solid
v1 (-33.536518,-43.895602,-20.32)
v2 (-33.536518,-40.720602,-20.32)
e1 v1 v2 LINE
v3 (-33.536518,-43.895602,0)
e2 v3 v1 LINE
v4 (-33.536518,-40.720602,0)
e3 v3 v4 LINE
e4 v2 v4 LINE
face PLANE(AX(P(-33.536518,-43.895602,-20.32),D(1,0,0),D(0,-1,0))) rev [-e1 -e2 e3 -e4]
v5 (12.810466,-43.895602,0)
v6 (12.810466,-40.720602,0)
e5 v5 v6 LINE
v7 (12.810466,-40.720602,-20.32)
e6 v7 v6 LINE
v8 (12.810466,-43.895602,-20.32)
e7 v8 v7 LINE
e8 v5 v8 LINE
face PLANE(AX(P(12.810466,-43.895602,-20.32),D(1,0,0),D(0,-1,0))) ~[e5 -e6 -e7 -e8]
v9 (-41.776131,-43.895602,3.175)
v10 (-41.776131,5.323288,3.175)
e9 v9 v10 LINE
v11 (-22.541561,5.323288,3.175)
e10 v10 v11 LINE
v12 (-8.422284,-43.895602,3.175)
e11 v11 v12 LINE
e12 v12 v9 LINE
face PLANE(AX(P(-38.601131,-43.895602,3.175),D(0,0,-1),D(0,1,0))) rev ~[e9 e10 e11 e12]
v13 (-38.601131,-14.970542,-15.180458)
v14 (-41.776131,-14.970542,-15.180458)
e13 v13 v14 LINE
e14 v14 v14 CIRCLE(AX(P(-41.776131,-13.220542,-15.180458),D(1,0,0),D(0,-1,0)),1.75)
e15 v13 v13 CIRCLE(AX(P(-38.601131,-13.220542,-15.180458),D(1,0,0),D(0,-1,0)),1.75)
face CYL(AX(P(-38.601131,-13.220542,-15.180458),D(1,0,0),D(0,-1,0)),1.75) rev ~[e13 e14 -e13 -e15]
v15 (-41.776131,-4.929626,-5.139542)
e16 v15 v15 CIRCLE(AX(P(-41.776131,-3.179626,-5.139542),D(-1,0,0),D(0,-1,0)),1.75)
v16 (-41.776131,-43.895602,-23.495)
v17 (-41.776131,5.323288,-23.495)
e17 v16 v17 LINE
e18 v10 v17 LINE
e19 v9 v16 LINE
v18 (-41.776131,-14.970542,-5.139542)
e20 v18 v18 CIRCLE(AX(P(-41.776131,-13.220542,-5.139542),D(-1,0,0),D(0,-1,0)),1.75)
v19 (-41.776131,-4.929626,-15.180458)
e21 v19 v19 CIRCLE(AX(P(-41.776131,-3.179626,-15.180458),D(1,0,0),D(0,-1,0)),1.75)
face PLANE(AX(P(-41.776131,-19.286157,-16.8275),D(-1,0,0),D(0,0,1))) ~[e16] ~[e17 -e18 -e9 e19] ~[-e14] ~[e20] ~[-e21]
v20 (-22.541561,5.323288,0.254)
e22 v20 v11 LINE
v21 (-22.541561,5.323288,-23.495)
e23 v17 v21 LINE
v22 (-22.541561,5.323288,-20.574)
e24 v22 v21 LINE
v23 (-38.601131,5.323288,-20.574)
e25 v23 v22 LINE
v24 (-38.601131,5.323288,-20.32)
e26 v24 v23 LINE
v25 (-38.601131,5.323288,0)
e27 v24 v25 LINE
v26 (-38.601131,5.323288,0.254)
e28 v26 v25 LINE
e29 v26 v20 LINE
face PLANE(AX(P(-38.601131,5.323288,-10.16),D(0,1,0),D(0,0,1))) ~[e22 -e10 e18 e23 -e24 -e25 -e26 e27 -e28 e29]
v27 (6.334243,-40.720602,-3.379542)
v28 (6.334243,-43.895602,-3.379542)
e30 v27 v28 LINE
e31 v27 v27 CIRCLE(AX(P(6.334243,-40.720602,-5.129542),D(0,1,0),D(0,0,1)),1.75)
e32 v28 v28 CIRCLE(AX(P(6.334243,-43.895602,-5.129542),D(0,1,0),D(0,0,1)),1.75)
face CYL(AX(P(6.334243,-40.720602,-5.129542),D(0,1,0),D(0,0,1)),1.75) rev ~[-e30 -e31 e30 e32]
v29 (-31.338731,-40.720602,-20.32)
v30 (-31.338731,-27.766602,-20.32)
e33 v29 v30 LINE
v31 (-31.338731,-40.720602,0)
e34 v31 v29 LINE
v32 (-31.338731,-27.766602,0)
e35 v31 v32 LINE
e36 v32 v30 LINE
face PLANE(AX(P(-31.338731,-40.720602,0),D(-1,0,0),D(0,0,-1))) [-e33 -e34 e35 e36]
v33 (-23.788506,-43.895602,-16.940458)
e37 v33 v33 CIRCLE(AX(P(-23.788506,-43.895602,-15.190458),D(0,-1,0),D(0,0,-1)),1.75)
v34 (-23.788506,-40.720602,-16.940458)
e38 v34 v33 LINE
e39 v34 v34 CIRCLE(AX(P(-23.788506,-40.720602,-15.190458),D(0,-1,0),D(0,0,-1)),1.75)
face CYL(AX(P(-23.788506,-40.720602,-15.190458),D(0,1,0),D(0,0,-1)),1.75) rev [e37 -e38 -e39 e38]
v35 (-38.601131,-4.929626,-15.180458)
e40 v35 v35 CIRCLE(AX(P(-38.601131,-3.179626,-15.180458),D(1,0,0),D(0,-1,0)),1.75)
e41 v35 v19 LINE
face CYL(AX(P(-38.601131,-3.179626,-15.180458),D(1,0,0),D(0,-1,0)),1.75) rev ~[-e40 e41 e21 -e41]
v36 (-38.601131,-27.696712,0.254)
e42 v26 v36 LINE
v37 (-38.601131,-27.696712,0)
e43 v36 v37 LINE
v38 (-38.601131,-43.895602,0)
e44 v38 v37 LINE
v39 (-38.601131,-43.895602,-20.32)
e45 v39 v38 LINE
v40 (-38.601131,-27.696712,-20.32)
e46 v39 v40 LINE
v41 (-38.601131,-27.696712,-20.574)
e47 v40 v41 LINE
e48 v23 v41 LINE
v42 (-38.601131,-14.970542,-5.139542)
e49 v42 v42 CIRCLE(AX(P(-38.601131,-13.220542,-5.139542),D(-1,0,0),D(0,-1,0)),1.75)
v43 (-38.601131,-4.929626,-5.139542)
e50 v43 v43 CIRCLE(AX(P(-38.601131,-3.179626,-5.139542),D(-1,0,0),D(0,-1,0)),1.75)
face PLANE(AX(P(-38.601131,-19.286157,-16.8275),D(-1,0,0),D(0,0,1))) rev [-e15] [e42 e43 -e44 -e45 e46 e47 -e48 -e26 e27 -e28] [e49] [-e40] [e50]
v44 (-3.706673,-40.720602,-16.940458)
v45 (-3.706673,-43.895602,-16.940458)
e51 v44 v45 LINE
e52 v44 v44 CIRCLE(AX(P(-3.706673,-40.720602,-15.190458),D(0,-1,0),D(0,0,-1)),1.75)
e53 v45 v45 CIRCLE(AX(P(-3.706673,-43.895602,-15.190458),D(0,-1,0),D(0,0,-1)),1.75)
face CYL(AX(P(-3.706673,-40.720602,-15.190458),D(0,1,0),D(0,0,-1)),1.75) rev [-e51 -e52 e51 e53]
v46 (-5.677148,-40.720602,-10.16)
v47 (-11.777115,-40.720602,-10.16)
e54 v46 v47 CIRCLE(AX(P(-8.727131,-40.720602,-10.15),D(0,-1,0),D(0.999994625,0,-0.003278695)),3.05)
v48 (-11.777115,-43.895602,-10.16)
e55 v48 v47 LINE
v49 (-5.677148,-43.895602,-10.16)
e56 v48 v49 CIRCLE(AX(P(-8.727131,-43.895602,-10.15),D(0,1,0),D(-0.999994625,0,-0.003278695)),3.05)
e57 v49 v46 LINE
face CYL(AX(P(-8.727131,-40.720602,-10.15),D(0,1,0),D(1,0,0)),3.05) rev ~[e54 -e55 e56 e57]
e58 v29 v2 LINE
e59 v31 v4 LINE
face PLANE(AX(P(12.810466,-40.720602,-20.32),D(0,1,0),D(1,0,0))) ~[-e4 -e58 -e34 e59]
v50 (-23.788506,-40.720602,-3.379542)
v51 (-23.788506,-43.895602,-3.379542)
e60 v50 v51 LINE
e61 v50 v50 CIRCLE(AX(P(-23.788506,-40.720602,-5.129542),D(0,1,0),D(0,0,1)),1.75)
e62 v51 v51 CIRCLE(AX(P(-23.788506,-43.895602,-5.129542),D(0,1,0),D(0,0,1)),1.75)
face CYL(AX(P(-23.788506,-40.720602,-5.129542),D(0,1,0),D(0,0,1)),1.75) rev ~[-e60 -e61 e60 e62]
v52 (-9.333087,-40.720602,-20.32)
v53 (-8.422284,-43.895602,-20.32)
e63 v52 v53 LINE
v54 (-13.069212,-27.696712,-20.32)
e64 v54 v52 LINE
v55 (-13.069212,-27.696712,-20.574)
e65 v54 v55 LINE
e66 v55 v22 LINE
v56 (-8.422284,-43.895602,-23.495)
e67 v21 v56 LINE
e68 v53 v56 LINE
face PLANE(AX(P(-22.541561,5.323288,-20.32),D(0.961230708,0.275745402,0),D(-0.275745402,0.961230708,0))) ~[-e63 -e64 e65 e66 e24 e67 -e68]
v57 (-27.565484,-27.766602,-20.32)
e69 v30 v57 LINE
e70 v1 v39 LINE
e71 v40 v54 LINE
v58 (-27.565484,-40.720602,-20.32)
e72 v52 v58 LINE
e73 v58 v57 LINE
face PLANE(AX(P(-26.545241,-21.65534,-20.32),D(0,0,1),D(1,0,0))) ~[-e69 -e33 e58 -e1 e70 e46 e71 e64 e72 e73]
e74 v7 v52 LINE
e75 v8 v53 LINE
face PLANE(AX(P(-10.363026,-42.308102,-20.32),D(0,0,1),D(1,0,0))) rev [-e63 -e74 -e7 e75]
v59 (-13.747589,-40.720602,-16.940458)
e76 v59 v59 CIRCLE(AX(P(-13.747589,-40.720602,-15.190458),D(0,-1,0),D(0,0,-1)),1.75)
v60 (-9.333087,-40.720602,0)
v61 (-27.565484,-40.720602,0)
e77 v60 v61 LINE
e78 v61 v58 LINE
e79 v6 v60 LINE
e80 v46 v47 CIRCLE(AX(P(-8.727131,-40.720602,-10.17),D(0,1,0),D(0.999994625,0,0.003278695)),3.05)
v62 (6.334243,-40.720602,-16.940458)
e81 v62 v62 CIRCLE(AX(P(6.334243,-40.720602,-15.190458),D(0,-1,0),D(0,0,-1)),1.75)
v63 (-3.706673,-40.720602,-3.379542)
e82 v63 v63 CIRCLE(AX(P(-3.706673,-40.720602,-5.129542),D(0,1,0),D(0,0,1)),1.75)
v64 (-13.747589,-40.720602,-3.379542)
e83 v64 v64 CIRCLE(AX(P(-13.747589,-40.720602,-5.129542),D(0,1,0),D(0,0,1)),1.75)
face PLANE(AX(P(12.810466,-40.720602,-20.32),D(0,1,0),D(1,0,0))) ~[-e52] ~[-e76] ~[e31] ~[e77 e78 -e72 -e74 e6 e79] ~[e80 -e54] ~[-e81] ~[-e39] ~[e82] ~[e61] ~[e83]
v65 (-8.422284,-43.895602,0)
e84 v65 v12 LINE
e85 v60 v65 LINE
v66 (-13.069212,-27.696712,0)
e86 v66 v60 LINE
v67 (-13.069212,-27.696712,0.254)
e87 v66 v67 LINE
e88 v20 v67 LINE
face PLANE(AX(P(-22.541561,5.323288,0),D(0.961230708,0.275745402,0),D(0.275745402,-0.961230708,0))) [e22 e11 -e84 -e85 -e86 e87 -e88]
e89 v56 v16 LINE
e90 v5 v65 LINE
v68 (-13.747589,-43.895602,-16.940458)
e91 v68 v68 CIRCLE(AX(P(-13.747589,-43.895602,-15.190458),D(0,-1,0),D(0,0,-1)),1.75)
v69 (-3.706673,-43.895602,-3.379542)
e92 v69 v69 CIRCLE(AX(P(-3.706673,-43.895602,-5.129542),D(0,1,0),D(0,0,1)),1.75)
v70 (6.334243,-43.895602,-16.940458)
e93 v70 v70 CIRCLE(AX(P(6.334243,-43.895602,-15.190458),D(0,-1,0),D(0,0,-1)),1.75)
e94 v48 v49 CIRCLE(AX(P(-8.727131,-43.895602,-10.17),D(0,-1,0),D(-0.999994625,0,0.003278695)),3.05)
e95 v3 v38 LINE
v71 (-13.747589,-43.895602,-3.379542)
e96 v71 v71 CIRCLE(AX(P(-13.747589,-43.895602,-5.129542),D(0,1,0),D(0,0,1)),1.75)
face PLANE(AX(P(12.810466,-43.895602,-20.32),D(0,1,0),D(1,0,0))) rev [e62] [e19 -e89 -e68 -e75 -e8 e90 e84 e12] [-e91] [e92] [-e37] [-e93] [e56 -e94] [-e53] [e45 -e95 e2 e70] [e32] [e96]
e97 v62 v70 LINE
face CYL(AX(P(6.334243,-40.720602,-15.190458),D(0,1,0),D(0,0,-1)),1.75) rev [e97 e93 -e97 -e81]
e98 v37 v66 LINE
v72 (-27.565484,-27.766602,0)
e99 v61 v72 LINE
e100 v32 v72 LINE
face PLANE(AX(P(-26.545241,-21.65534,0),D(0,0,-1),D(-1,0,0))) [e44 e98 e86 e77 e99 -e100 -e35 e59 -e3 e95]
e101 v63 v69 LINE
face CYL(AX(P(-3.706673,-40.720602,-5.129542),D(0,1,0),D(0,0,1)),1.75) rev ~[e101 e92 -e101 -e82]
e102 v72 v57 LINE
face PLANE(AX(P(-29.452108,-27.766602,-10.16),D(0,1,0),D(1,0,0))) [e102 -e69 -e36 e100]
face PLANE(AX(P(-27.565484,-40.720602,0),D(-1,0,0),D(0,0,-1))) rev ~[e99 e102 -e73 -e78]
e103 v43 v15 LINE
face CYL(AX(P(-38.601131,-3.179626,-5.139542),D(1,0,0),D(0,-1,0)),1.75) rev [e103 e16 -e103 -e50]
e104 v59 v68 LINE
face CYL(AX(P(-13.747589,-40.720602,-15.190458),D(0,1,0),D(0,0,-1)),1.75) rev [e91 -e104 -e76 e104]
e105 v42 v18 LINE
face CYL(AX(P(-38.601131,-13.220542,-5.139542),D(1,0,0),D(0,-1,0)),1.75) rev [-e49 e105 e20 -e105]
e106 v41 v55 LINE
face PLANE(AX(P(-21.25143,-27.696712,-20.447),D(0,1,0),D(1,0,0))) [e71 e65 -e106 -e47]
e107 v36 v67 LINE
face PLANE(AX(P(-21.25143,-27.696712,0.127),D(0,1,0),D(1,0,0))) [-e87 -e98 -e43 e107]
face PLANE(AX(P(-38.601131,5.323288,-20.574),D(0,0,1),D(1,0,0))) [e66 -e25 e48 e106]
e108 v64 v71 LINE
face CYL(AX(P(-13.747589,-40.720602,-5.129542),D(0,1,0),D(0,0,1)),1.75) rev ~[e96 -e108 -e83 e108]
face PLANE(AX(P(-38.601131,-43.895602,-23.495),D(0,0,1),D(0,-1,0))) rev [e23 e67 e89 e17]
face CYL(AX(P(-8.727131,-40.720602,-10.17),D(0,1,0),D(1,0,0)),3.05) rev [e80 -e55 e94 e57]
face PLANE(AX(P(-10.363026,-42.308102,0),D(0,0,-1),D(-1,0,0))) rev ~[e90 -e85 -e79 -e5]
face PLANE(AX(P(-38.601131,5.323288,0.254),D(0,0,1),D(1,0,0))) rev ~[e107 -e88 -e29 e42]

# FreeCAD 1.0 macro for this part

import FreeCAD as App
import Part
import Sketcher

V = App.Vector
Q = App.Units.Quantity

doc = App.newDocument("Part")
body = doc.addObject("PartDesign::Body", "Body")

sketch1 = doc.addObject("Sketcher::SketchObject", "Sketch")
body.addObject(sketch1)
sketch1.AttachmentSupport = (doc.XY_Plane, [""])
sketch1.MapMode = "FlatFace"
sketch1.addGeometry([
    Part.LineSegment(V(-8, -44, 0), V(-23, 5, 0)),
    Part.LineSegment(V(-23, 5, 0), V(-39, 5, 0)),
    Part.LineSegment(V(-39, 5, 0), V(-39, -44, 0)),
    Part.LineSegment(V(-39, -44, 0), V(-8, -44, 0)),
], False)
sketch1.addConstraint([
    Sketcher.Constraint("Coincident", 0, 2, 1, 1),
    Sketcher.Constraint("Coincident", 1, 2, 2, 1),
    Sketcher.Constraint("Coincident", 2, 2, 3, 1),
    Sketcher.Constraint("Coincident", 3, 2, 0, 1),
    Sketcher.Constraint("Horizontal", 1),
    Sketcher.Constraint("Vertical", 2),
    Sketcher.Constraint("Horizontal", 3),
    Sketcher.Constraint("DistanceX", 1, 2, 1, 1, Q("16.05957 mm")),
    Sketcher.Constraint("DistanceY", 2, 2, 2, 1, Q("49.21889 mm")),
    Sketcher.Constraint("DistanceY", 2, 2, -1, 1, Q("43.895602 mm")),
    Sketcher.Constraint("DistanceX", 3, 1, 3, 2, Q("30.178847 mm")),
    Sketcher.Constraint("DistanceX", 0, 2, -1, 1, Q("22.541561 mm")),
])
pad1 = doc.addObject("PartDesign::Pad", "Pad")
body.addObject(pad1)
pad1.Profile = sketch1
pad1.Length = Q("0.125 in")

sketch2 = doc.addObject("Sketcher::SketchObject", "Sketch001")
body.addObject(sketch2)
sketch2.AttachmentSupport = (doc.YZ_Plane, [""])
sketch2.MapMode = "FlatFace"
sketch2.AttachmentOffset = App.Placement(V(0, 0, -38.601131), App.Rotation())
sketch2.addGeometry([
    Part.LineSegment(V(5.3, -10.2, 0), V(-43.9, -10.2, 0)),
    Part.LineSegment(V(-43.9, -10.2, 0), V(-43.9, 3.2, 0)),
    Part.LineSegment(V(-43.9, 3.2, 0), V(5.3, 3.2, 0)),
    Part.LineSegment(V(5.3, 3.2, 0), V(5.3, -10.2, 0)),
    Part.Circle(V(-13.2, -5.1, 0), V(0, 0, 1), 1.8),
    Part.Circle(V(-3.2, -5.1, 0), V(0, 0, 1), 1.8),
], False)
sketch2.addConstraint([
    Sketcher.Constraint("Coincident", 0, 2, 1, 1),
    Sketcher.Constraint("Coincident", 1, 2, 2, 1),
    Sketcher.Constraint("Coincident", 2, 2, 3, 1),
    Sketcher.Constraint("Coincident", 3, 2, 0, 1),
    Sketcher.Constraint("Horizontal", 0),
    Sketcher.Constraint("Vertical", 1),
    Sketcher.Constraint("Horizontal", 2),
    Sketcher.Constraint("Vertical", 3),
    Sketcher.Constraint("Equal", 4, 5),
    Sketcher.Constraint("Horizontal", 4, 3, 5, 3),
    Sketcher.Constraint("DistanceY", 0, 2, -1, 1, Q("0.4 in")),
    Sketcher.Constraint("Diameter", 4, Q("3.5 mm")),
    Sketcher.Constraint("DistanceY", 1, 1, 1, 2, Q("0.525 in")),
    Sketcher.Constraint("DistanceX", 0, 2, 0, 1, Q("49.21889 mm")),
    Sketcher.Constraint("DistanceX", 0, 2, -1, 1, Q("43.895602 mm")),
    Sketcher.Constraint("DistanceX", 4, 3, -1, 1, Q("13.220542 mm")),
    Sketcher.Constraint("DistanceY", 4, 3, -1, 1, Q("5.139542 mm")),
    Sketcher.Constraint("DistanceX", 5, 3, -1, 1, Q("3.179626 mm")),
])
pad2 = doc.addObject("PartDesign::Pad", "Pad001")
body.addObject(pad2)
pad2.Profile = sketch2
pad2.Length = Q("0.125 in")
pad2.Reversed = True

sketch3 = doc.addObject("Sketcher::SketchObject", "Sketch002")
body.addObject(sketch3)
sketch3.AttachmentSupport = (doc.XY_Plane, [""])
sketch3.MapMode = "FlatFace"
sketch3.addGeometry([
    Part.LineSegment(V(12.8, -40.7, 0), V(12.8, -43.9, 0)),
    Part.LineSegment(V(12.8, -43.9, 0), V(-33.5, -43.9, 0)),
    Part.LineSegment(V(-33.5, -43.9, 0), V(-33.5, -40.7, 0)),
    Part.LineSegment(V(-33.5, -40.7, 0), V(12.8, -40.7, 0)),
], False)
sketch3.addConstraint([
    Sketcher.Constraint("Coincident", 0, 2, 1, 1),
    Sketcher.Constraint("Coincident", 1, 2, 2, 1),
    Sketcher.Constraint("Coincident", 2, 2, 3, 1),
    Sketcher.Constraint("Coincident", 3, 2, 0, 1),
    Sketcher.Constraint("Vertical", 0),
    Sketcher.Constraint("Horizontal", 1),
    Sketcher.Constraint("Vertical", 2),
    Sketcher.Constraint("Horizontal", 3),
    Sketcher.Constraint("DistanceY", 0, 2, 0, 1, Q("0.125 in")),
    Sketcher.Constraint("DistanceY", 0, 2, -1, 1, Q("43.895602 mm")),
    Sketcher.Constraint("DistanceX", 1, 2, 1, 1, Q("46.346984 mm")),
    Sketcher.Constraint("DistanceX", 1, 2, -1, 1, Q("33.536518 mm")),
])
pad3 = doc.addObject("PartDesign::Pad", "Pad002")
body.addObject(pad3)
pad3.Profile = sketch3
pad3.Length = Q("0.4 in")
pad3.Reversed = True

sketch4 = doc.addObject("Sketcher::SketchObject", "Sketch003")
body.addObject(sketch4)
sketch4.AttachmentSupport = (doc.XZ_Plane, [""])
sketch4.MapMode = "FlatFace"
sketch4.AttachmentOffset = App.Placement(V(0, 0, 40.720602), App.Rotation())
sketch4.addGeometry([
    Part.Circle(V(-3.7, -5.1, 0), V(0, 0, 1), 1.8),
    Part.Circle(V(-23.8, -5.1, 0), V(0, 0, 1), 1.8),
    Part.Circle(V(6.3, -15.2, 0), V(0, 0, 1), 1.8),
    Part.Circle(V(-8.7, -10.1, 0), V(0, 0, 1), 3),
    Part.Circle(V(6.3, -5.1, 0), V(0, 0, 1), 1.8),
    Part.Circle(V(-13.7, -5.1, 0), V(0, 0, 1), 1.8),
    Part.Circle(V(-23.8, -15.2, 0), V(0, 0, 1), 1.8),
    Part.Circle(V(-3.7, -15.2, 0), V(0, 0, 1), 1.8),
    Part.Circle(V(-13.7, -15.2, 0), V(0, 0, 1), 1.8),
], False)
sketch4.addConstraint([
    Sketcher.Constraint("Equal", 0, 1),
    Sketcher.Constraint("Equal", 1, 2),
    Sketcher.Constraint("Equal", 2, 4),
    Sketcher.Constraint("Equal", 4, 5),
    Sketcher.Constraint("Equal", 5, 6),
    Sketcher.Constraint("Equal", 6, 7),
    Sketcher.Constraint("Equal", 7, 8),
    Sketcher.Constraint("Horizontal", 0, 3, 1, 3),
    Sketcher.Constraint("Horizontal", 1, 3, 4, 3),
    Sketcher.Constraint("Horizontal", 4, 3, 5, 3),
    Sketcher.Constraint("Horizontal", 2, 3, 6, 3),
    Sketcher.Constraint("Horizontal", 6, 3, 7, 3),
    Sketcher.Constraint("Horizontal", 7, 3, 8, 3),
    Sketcher.Constraint("Vertical", 2, 3, 4, 3),
    Sketcher.Constraint("Vertical", 1, 3, 6, 3),
    Sketcher.Constraint("Vertical", 0, 3, 7, 3),
    Sketcher.Constraint("Vertical", 5, 3, 8, 3),
    Sketcher.Constraint("Diameter", 0, Q("3.5 mm")),
    Sketcher.Constraint("Diameter", 3, Q("6.1 mm")),
    Sketcher.Constraint("DistanceY", 3, 3, -1, 1, Q("10.15 mm")),
    Sketcher.Constraint("DistanceY", 0, 3, -1, 1, Q("5.129542 mm")),
    Sketcher.Constraint("DistanceY", 2, 3, -1, 1, Q("15.170458 mm")),
    Sketcher.Constraint("DistanceX", 3, 3, -1, 1, Q("8.727131 mm")),
    Sketcher.Constraint("DistanceX", 5, 3, -1, 1, Q("13.747589 mm")),
    Sketcher.Constraint("DistanceX", 1, 3, 2, 3, Q("30.122749 mm")),
    Sketcher.Constraint("DistanceX", 3, 3, 0, 3, Q("5.020458 mm")),
    Sketcher.Constraint("DistanceX", 1, 3, -1, 1, Q("23.788506 mm")),
])
pocket1 = doc.addObject("PartDesign::Pocket", "Pocket")
body.addObject(pocket1)
pocket1.Profile = sketch4
pocket1.Length = Q("0.325 in")
pocket1.Reversed = True
body2 = doc.addObject("PartDesign::Body", "Body001")
doc.recompute()

body2.BaseFeature = body
doc.recompute()

mirroring = doc.addObject("Part::Mirroring", "Mirroring")
mirroring.Source = body
mirroring.Base = V(-41.776131, 5.323288, -10.16)
mirroring.Normal = V(0, 0, 1)
body3 = doc.addObject("PartDesign::Body", "Body002")
body3.BaseFeature = mirroring
boolean = doc.addObject("PartDesign::Boolean", "Boolean")
body2.addObject(boolean)
boolean.Type = "Fuse"
boolean.addObjects([body3])
doc.recompute()

sketch5 = doc.addObject("Sketcher::SketchObject", "Sketch004")
body2.addObject(sketch5)
sketch5.AttachmentSupport = (doc.getObject("XZ_Plane001"), [""])
sketch5.MapMode = "FlatFace"
sketch5.AttachmentOffset = App.Placement(V(0, 0, 40.720602), App.Rotation())
sketch5.addGeometry([
    Part.LineSegment(V(-31.3, -20.3, 0), V(-31.3, 0, 0)),
    Part.LineSegment(V(-31.3, 0, 0), V(-27.6, 0, 0)),
    Part.LineSegment(V(-27.6, 0, 0), V(-27.6, -20.3, 0)),
    Part.LineSegment(V(-27.6, -20.3, 0), V(-31.3, -20.3, 0)),
], False)
sketch5.addConstraint([
    Sketcher.Constraint("Coincident", 0, 2, 1, 1),
    Sketcher.Constraint("Coincident", 1, 2, 2, 1),
    Sketcher.Constraint("Coincident", 2, 2, 3, 1),
    Sketcher.Constraint("Coincident", 3, 2, 0, 1),
    Sketcher.Constraint("Vertical", 0),
    Sketcher.Constraint("Horizontal", 1),
    Sketcher.Constraint("Vertical", 2),
    Sketcher.Constraint("Horizontal", 3),
    Sketcher.Constraint("PointOnObject", 0, 2, -1),
    Sketcher.Constraint("DistanceY", 0, 1, 0, 2, Q("0.8 in")),
    Sketcher.Constraint("DistanceX", 1, 1, 1, 2, Q("3.773247 mm")),
    Sketcher.Constraint("DistanceX", 0, 2, -1, 1, Q("31.338731 mm")),
])
pad4 = doc.addObject("PartDesign::Pad", "Pad003")
body2.addObject(pad4)
pad4.Profile = sketch5
pad4.Length = Q("0.51 in")
pad4.Reversed = True

sketch6 = doc.addObject("Sketcher::SketchObject", "Sketch005")
body2.addObject(sketch6)
sketch6.AttachmentSupport = (doc.getObject("XZ_Plane001"), [""])
sketch6.MapMode = "FlatFace"
sketch6.AttachmentOffset = App.Placement(V(0, 0, -5.323288), App.Rotation())
sketch6.addGeometry([
    Part.LineSegment(V(-38.6, -20.57, 0), V(-38.6, -20.32, 0)),
    Part.LineSegment(V(-38.6, -20.32, 0), V(-3.9, -20.32, 0)),
    Part.LineSegment(V(-3.9, -20.32, 0), V(-3.9, -20.57, 0)),
    Part.LineSegment(V(-3.9, -20.57, 0), V(-38.6, -20.57, 0)),
    Part.LineSegment(V(-38.6, 0, 0), V(-38.6, 0.25, 0)),
    Part.LineSegment(V(-38.6, 0.25, 0), V(-3.9, 0.25, 0)),
    Part.LineSegment(V(-3.9, 0.25, 0), V(-3.9, 0, 0)),
    Part.LineSegment(V(-3.9, 0, 0), V(-38.6, 0, 0)),
], False)
sketch6.addConstraint([
    Sketcher.Constraint("Coincident", 0, 2, 1, 1),
    Sketcher.Constraint("Coincident", 1, 2, 2, 1),
    Sketcher.Constraint("Coincident", 2, 2, 3, 1),
    Sketcher.Constraint("Coincident", 3, 2, 0, 1),
    Sketcher.Constraint("Coincident", 4, 2, 5, 1),
    Sketcher.Constraint("Coincident", 5, 2, 6, 1),
    Sketcher.Constraint("Coincident", 6, 2, 7, 1),
    Sketcher.Constraint("Coincident", 7, 2, 4, 1),
    Sketcher.Constraint("Vertical", 0),
    Sketcher.Constraint("Horizontal", 1),
    Sketcher.Constraint("Vertical", 2),
    Sketcher.Constraint("Horizontal", 3),
    Sketcher.Constraint("Vertical", 4),
    Sketcher.Constraint("Horizontal", 5),
    Sketcher.Constraint("Vertical", 6),
    Sketcher.Constraint("Horizontal", 7),
    Sketcher.Constraint("PointOnObject", 6, 2, -1),
    Sketcher.Constraint("Vertical", 3, 2, 4, 2),
    Sketcher.Constraint("Vertical", 2, 2, 5, 2),
    Sketcher.Constraint("Equal", 2, 4),
    Sketcher.Constraint("DistanceY", 0, 1, 0, 2, Q("0.01 in")),
    Sketcher.Constraint("DistanceY", 0, 2, -1, 1, Q("0.8 in")),
    Sketcher.Constraint("DistanceX", 1, 1, 1, 2, Q("34.699402 mm")),
    Sketcher.Constraint("DistanceX", 0, 2, -1, 1, Q("38.601131 mm")),
])
pocket2 = doc.addObject("PartDesign::Pocket", "Pocket001")
body2.addObject(pocket2)
pocket2.Profile = sketch6
pocket2.Length = Q("1.3 in")
pocket2.Reversed = True
mirroring.Visibility = False

doc.recompute()
